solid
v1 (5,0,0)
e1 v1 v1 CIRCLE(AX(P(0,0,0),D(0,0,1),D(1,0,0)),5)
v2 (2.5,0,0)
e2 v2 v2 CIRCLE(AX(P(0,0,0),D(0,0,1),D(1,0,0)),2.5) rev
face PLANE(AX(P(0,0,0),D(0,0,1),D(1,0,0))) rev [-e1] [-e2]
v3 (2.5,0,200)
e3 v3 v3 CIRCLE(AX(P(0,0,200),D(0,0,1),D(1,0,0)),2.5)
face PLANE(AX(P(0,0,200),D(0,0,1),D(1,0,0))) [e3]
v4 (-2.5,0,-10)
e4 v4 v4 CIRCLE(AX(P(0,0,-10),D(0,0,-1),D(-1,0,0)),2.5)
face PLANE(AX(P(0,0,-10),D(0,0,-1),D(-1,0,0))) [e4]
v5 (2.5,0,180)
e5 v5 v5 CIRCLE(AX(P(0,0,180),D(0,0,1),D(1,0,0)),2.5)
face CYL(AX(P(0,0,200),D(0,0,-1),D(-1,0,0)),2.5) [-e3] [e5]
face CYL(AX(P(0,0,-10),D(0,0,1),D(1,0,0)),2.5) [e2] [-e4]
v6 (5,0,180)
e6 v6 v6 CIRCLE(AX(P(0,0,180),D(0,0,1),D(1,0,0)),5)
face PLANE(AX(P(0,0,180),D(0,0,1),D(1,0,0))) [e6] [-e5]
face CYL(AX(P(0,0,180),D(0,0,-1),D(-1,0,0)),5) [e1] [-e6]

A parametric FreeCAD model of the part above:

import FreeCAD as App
import Part
import Sketcher
from FreeCAD import Vector
Q = App.Units.Quantity

doc = App.newDocument("Part")
body = doc.addObject("PartDesign::Body", "Body")

sketch1 = doc.addObject("Sketcher::SketchObject", "Sketch")
body.addObject(sketch1)
sketch1.AttachmentSupport = (doc.XY_Plane, [""])
sketch1.MapMode = "FlatFace"
sketch1.addGeometry(Part.Circle(Vector(0, 0, 0), Vector(0, 0, 1), 5), False)
sketch1.addConstraint([
    Sketcher.Constraint("Coincident", 0, 3, -1, 1),
    Sketcher.Constraint("Diameter", 0, Q("10 mm")),
])
pad1 = doc.addObject("PartDesign::Pad", "Pad")
body.addObject(pad1)
pad1.Profile = sketch1
pad1.Length = 180

sketch2 = doc.addObject("Sketcher::SketchObject", "Sketch001")
body.addObject(sketch2)
sketch2.AttachmentSupport = (doc.XY_Plane, [""])
sketch2.MapMode = "FlatFace"
sketch2.AttachmentOffset = App.Placement(Vector(0, 0, 180), App.Rotation())
sketch2.addGeometry(Part.Circle(Vector(0, 0, 0), Vector(0, 0, 1), 2.5), False)
sketch2.addConstraint([
    Sketcher.Constraint("Coincident", 0, 3, -1, 1),
    Sketcher.Constraint("Diameter", 0, Q("5 mm")),
])
pad2 = doc.addObject("PartDesign::Pad", "Pad001")
body.addObject(pad2)
pad2.Profile = sketch2
pad2.Length = 20

sketch3 = doc.addObject("Sketcher::SketchObject", "Sketch002")
body.addObject(sketch3)
sketch3.AttachmentSupport = (doc.XY_Plane, [""])
sketch3.MapMode = "FlatFace"
sketch3.addGeometry(Part.Circle(Vector(0, 0, 0), Vector(0, 0, 1), 2.5), False)
sketch3.addConstraint([
    Sketcher.Constraint("Coincident", 0, 3, -1, 1),
    Sketcher.Constraint("Diameter", 0, Q("5 mm")),
])
pad3 = doc.addObject("PartDesign::Pad", "Pad002")
body.addObject(pad3)
pad3.Profile = sketch3
pad3.Length = 10
pad3.Reversed = True

doc.recompute()
